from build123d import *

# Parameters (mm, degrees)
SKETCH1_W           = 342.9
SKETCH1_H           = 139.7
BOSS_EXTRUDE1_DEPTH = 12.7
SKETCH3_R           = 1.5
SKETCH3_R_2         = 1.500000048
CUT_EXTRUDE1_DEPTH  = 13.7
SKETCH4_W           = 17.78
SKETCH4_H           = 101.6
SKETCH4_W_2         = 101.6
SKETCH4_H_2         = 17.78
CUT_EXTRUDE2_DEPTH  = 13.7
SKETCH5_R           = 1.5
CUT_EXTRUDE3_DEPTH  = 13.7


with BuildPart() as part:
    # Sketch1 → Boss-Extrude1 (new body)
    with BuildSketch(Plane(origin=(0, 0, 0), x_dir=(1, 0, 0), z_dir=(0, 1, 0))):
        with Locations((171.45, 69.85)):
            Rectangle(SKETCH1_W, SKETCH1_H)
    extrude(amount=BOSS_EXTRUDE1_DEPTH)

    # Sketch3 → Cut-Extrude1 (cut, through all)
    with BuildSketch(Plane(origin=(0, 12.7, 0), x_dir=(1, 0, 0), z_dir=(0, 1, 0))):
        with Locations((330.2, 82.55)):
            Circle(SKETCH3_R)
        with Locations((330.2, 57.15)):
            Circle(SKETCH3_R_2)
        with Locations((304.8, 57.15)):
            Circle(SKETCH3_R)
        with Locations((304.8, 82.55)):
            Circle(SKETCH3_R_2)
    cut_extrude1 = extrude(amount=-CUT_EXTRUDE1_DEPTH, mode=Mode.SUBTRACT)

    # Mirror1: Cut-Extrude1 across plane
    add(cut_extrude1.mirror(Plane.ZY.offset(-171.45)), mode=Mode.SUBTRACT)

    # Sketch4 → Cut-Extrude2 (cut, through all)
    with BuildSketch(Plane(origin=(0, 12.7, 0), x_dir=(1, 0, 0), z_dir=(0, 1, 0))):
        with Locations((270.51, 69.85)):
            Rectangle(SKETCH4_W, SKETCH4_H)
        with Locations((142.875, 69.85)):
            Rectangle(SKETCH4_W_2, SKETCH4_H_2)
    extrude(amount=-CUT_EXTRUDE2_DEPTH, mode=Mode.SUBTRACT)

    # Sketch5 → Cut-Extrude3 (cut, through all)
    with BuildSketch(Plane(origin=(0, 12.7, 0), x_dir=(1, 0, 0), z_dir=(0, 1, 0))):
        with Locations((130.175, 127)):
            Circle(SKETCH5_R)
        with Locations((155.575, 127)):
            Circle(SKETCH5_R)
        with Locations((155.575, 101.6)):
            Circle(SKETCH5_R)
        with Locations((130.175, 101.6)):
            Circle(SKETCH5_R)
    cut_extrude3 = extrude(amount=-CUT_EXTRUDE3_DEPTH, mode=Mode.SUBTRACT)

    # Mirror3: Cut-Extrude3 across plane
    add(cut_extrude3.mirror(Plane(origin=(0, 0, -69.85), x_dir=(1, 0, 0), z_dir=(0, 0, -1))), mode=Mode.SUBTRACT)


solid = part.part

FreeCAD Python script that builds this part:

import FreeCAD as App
import Part
import Sketcher

V = App.Vector
Q = App.Units.Quantity

doc = App.newDocument("Part")
body = doc.addObject("PartDesign::Body", "Body")

# Sketch on XZ plane
sketch1 = body.newObject("Sketcher::SketchObject", "Sketch")
sketch1.AttachmentSupport = (doc.getObject("XZ_Plane"), [""])
sketch1.MapMode = "FlatFace"
sketch1.addGeometry([
    Part.LineSegment(V(0, -140, 0), V(0, 0, 0)),
    Part.LineSegment(V(0, 0, 0), V(343, 0, 0)),
    Part.LineSegment(V(343, 0, 0), V(343, -140, 0)),
    Part.LineSegment(V(343, -140, 0), V(0, -140, 0)),
], False)
sketch1.addConstraint([
    Sketcher.Constraint("Coincident", 0, 2, 1, 1),
    Sketcher.Constraint("Coincident", 1, 2, 2, 1),
    Sketcher.Constraint("Coincident", 2, 2, 3, 1),
    Sketcher.Constraint("Coincident", 3, 2, 0, 1),
    Sketcher.Constraint("Vertical", 0),
    Sketcher.Constraint("Horizontal", 1),
    Sketcher.Constraint("Vertical", 2),
    Sketcher.Constraint("Horizontal", 3),
    Sketcher.Constraint("Coincident", 0, 2, -1, 1),
    Sketcher.Constraint("DistanceX", 1, 1, 1, 2, Q("13.5 in")),
    Sketcher.Constraint("DistanceY", 0, 1, 0, 2, Q("5.5 in")),
])
pad1 = body.newObject("PartDesign::Pad", "Pad")
pad1.Profile = sketch1
pad1.Length = Q("0.5 in")
pad1.Reversed = True

# Sketch on XZ plane
sketch2 = body.newObject("Sketcher::SketchObject", "Sketch001")
sketch2.AttachmentSupport = (doc.getObject("XZ_Plane"), [""])
sketch2.MapMode = "FlatFace"
sketch2.AttachmentOffset = App.Placement(V(0, 0, -0.5 * 25.4), App.Rotation())
sketch2.addGeometry([
    Part.Circle(V(330.2, -82.5, 0), V(0, 0, 1), 1.5),
    Part.Circle(V(330.2, -57.1, 0), V(0, 0, 1), 1.5),
    Part.Circle(V(304.8, -57.1, 0), V(0, 0, 1), 1.5),
    Part.Circle(V(304.8, -82.5, 0), V(0, 0, 1), 1.5),
], False)
sketch2.addConstraint([
    Sketcher.Constraint("Equal", 0, 1),
    Sketcher.Constraint("Equal", 1, 2),
    Sketcher.Constraint("Equal", 2, 3),
    Sketcher.Constraint("Horizontal", 1, 3, 2, 3),
    Sketcher.Constraint("Horizontal", 0, 3, 3, 3),
    Sketcher.Constraint("Vertical", 0, 3, 1, 3),
    Sketcher.Constraint("Vertical", 2, 3, 3, 3),
    Sketcher.Constraint("DistanceX", -1, 1, 0, 3, Q("13 in")),
    Sketcher.Constraint("DistanceX", -1, 1, 2, 3, Q("12 in")),
    Sketcher.Constraint("DistanceY", 0, 3, 1, 3, Q("1 in")),
    Sketcher.Constraint("Diameter", 0, Q("3 mm")),
    Sketcher.Constraint("DistanceY", 0, 3, -1, 1, Q("3.25 in")),
])
pocket1 = body.newObject("PartDesign::Pocket", "Pocket")
pocket1.Profile = sketch2
pocket1.Type = "ThroughAll"
pocket1.Reversed = True
doc.recompute()

datumplane = body.newObject("PartDesign::Plane", "DatumPlane")
datumplane.AttachmentSupport = (doc.getObject("YZ_Plane"), [""])
datumplane.MapMode = "FlatFace"
datumplane.AttachmentOffset = App.Placement(V(0, 0, 6.75 * 25.4), App.Rotation())
mirrored = body.newObject("PartDesign::Mirrored", "Mirrored")
mirrored.Originals = [pocket1]
mirrored.MirrorPlane = (datumplane, [""])
body.Tip = mirrored

# Sketch on XZ plane
sketch3 = body.newObject("Sketcher::SketchObject", "Sketch002")
sketch3.AttachmentSupport = (doc.getObject("XZ_Plane"), [""])
sketch3.MapMode = "FlatFace"
sketch3.AttachmentOffset = App.Placement(V(0, 0, -0.5 * 25.4), App.Rotation())
sketch3.addGeometry([
    Part.LineSegment(V(262, -121, 0), V(262, -19, 0)),  # 0
    Part.LineSegment(V(262, -19, 0), V(279, -19, 0)),  # 1
    Part.LineSegment(V(279, -19, 0), V(279, -121, 0)),  # 2
    Part.LineSegment(V(279, -121, 0), V(262, -121, 0)),  # 3
    Part.LineSegment(V(92, -79, 0), V(92, -61, 0)),  # 4
    Part.LineSegment(V(92, -61, 0), V(194, -61, 0)),  # 5
    Part.LineSegment(V(194, -61, 0), V(194, -79, 0)),  # 6
    Part.LineSegment(V(194, -79, 0), V(92, -79, 0)),  # 7
], False)
sketch3.addConstraint([
    Sketcher.Constraint("Coincident", 0, 2, 1, 1),
    Sketcher.Constraint("Coincident", 1, 2, 2, 1),
    Sketcher.Constraint("Coincident", 2, 2, 3, 1),
    Sketcher.Constraint("Coincident", 3, 2, 0, 1),
    Sketcher.Constraint("Coincident", 4, 2, 5, 1),
    Sketcher.Constraint("Coincident", 5, 2, 6, 1),
    Sketcher.Constraint("Coincident", 6, 2, 7, 1),
    Sketcher.Constraint("Coincident", 7, 2, 4, 1),
    Sketcher.Constraint("Vertical", 0),
    Sketcher.Constraint("Horizontal", 1),
    Sketcher.Constraint("Vertical", 2),
    Sketcher.Constraint("Horizontal", 3),
    Sketcher.Constraint("Vertical", 4),
    Sketcher.Constraint("Horizontal", 5),
    Sketcher.Constraint("Vertical", 6),
    Sketcher.Constraint("Horizontal", 7),
    Sketcher.Constraint("Equal", 7, 0),
    Sketcher.Constraint("Equal", 3, 4),
    Sketcher.Constraint("DistanceX", 5, 1, 5, 2, Q("4 in")),
    Sketcher.Constraint("DistanceX", 1, 1, 1, 2, Q("0.7 in")),
    Sketcher.Constraint("DistanceX", -1, 1, 1, 2, Q("11 in")),
    Sketcher.Constraint("DistanceY", 4, 2, -1, 1, Q("2.4 in")),
    Sketcher.Constraint("DistanceY", 0, 2, -1, 1, Q("0.75 in")),
    Sketcher.Constraint("DistanceX", -1, 1, 4, 2, Q("3.625 in")),
])
pocket2 = body.newObject("PartDesign::Pocket", "Pocket001")
pocket2.Profile = sketch3
pocket2.Type = "ThroughAll"
pocket2.Reversed = True

# Sketch on XZ plane
sketch4 = body.newObject("Sketcher::SketchObject", "Sketch003")
sketch4.AttachmentSupport = (doc.getObject("XZ_Plane"), [""])
sketch4.MapMode = "FlatFace"
sketch4.AttachmentOffset = App.Placement(V(0, 0, -0.5 * 25.4), App.Rotation())
sketch4.addGeometry([
    Part.Circle(V(130.2, -127, 0), V(0, 0, 1), 1.5),
    Part.Circle(V(155.6, -127, 0), V(0, 0, 1), 1.5),
    Part.Circle(V(155.6, -101.6, 0), V(0, 0, 1), 1.5),
    Part.Circle(V(130.2, -101.6, 0), V(0, 0, 1), 1.5),
], False)
sketch4.addConstraint([
    Sketcher.Constraint("Equal", 0, 1),
    Sketcher.Constraint("Equal", 1, 2),
    Sketcher.Constraint("Equal", 2, 3),
    Sketcher.Constraint("Horizontal", 0, 3, 1, 3),
    Sketcher.Constraint("Horizontal", 2, 3, 3, 3),
    Sketcher.Constraint("Vertical", 1, 3, 2, 3),
    Sketcher.Constraint("Vertical", 0, 3, 3, 3),
    Sketcher.Constraint("DistanceY", 0, 3, -1, 1, Q("5 in")),
    Sketcher.Constraint("DistanceY", 2, 3, -1, 1, Q("4 in")),
    Sketcher.Constraint("DistanceX", 0, 3, 1, 3, Q("1 in")),
    Sketcher.Constraint("Diameter", 0, Q("3 mm")),
    Sketcher.Constraint("DistanceX", -1, 1, 0, 3, Q("5.125 in")),
])
pocket3 = body.newObject("PartDesign::Pocket", "Pocket002")
pocket3.Profile = sketch4
pocket3.Type = "ThroughAll"
pocket3.Reversed = True
doc.recompute()

datumplane2 = body.newObject("PartDesign::Plane", "DatumPlane001")
datumplane2.AttachmentSupport = (doc.getObject("XY_Plane"), [""])
datumplane2.MapMode = "FlatFace"
datumplane2.AttachmentOffset = App.Placement(V(0, 0, -2.75 * 25.4), App.Rotation())
mirrored2 = body.newObject("PartDesign::Mirrored", "Mirrored001")
mirrored2.Originals = [pocket3]
mirrored2.MirrorPlane = (datumplane2, [""])
body.Tip = mirrored2

doc.recompute()
